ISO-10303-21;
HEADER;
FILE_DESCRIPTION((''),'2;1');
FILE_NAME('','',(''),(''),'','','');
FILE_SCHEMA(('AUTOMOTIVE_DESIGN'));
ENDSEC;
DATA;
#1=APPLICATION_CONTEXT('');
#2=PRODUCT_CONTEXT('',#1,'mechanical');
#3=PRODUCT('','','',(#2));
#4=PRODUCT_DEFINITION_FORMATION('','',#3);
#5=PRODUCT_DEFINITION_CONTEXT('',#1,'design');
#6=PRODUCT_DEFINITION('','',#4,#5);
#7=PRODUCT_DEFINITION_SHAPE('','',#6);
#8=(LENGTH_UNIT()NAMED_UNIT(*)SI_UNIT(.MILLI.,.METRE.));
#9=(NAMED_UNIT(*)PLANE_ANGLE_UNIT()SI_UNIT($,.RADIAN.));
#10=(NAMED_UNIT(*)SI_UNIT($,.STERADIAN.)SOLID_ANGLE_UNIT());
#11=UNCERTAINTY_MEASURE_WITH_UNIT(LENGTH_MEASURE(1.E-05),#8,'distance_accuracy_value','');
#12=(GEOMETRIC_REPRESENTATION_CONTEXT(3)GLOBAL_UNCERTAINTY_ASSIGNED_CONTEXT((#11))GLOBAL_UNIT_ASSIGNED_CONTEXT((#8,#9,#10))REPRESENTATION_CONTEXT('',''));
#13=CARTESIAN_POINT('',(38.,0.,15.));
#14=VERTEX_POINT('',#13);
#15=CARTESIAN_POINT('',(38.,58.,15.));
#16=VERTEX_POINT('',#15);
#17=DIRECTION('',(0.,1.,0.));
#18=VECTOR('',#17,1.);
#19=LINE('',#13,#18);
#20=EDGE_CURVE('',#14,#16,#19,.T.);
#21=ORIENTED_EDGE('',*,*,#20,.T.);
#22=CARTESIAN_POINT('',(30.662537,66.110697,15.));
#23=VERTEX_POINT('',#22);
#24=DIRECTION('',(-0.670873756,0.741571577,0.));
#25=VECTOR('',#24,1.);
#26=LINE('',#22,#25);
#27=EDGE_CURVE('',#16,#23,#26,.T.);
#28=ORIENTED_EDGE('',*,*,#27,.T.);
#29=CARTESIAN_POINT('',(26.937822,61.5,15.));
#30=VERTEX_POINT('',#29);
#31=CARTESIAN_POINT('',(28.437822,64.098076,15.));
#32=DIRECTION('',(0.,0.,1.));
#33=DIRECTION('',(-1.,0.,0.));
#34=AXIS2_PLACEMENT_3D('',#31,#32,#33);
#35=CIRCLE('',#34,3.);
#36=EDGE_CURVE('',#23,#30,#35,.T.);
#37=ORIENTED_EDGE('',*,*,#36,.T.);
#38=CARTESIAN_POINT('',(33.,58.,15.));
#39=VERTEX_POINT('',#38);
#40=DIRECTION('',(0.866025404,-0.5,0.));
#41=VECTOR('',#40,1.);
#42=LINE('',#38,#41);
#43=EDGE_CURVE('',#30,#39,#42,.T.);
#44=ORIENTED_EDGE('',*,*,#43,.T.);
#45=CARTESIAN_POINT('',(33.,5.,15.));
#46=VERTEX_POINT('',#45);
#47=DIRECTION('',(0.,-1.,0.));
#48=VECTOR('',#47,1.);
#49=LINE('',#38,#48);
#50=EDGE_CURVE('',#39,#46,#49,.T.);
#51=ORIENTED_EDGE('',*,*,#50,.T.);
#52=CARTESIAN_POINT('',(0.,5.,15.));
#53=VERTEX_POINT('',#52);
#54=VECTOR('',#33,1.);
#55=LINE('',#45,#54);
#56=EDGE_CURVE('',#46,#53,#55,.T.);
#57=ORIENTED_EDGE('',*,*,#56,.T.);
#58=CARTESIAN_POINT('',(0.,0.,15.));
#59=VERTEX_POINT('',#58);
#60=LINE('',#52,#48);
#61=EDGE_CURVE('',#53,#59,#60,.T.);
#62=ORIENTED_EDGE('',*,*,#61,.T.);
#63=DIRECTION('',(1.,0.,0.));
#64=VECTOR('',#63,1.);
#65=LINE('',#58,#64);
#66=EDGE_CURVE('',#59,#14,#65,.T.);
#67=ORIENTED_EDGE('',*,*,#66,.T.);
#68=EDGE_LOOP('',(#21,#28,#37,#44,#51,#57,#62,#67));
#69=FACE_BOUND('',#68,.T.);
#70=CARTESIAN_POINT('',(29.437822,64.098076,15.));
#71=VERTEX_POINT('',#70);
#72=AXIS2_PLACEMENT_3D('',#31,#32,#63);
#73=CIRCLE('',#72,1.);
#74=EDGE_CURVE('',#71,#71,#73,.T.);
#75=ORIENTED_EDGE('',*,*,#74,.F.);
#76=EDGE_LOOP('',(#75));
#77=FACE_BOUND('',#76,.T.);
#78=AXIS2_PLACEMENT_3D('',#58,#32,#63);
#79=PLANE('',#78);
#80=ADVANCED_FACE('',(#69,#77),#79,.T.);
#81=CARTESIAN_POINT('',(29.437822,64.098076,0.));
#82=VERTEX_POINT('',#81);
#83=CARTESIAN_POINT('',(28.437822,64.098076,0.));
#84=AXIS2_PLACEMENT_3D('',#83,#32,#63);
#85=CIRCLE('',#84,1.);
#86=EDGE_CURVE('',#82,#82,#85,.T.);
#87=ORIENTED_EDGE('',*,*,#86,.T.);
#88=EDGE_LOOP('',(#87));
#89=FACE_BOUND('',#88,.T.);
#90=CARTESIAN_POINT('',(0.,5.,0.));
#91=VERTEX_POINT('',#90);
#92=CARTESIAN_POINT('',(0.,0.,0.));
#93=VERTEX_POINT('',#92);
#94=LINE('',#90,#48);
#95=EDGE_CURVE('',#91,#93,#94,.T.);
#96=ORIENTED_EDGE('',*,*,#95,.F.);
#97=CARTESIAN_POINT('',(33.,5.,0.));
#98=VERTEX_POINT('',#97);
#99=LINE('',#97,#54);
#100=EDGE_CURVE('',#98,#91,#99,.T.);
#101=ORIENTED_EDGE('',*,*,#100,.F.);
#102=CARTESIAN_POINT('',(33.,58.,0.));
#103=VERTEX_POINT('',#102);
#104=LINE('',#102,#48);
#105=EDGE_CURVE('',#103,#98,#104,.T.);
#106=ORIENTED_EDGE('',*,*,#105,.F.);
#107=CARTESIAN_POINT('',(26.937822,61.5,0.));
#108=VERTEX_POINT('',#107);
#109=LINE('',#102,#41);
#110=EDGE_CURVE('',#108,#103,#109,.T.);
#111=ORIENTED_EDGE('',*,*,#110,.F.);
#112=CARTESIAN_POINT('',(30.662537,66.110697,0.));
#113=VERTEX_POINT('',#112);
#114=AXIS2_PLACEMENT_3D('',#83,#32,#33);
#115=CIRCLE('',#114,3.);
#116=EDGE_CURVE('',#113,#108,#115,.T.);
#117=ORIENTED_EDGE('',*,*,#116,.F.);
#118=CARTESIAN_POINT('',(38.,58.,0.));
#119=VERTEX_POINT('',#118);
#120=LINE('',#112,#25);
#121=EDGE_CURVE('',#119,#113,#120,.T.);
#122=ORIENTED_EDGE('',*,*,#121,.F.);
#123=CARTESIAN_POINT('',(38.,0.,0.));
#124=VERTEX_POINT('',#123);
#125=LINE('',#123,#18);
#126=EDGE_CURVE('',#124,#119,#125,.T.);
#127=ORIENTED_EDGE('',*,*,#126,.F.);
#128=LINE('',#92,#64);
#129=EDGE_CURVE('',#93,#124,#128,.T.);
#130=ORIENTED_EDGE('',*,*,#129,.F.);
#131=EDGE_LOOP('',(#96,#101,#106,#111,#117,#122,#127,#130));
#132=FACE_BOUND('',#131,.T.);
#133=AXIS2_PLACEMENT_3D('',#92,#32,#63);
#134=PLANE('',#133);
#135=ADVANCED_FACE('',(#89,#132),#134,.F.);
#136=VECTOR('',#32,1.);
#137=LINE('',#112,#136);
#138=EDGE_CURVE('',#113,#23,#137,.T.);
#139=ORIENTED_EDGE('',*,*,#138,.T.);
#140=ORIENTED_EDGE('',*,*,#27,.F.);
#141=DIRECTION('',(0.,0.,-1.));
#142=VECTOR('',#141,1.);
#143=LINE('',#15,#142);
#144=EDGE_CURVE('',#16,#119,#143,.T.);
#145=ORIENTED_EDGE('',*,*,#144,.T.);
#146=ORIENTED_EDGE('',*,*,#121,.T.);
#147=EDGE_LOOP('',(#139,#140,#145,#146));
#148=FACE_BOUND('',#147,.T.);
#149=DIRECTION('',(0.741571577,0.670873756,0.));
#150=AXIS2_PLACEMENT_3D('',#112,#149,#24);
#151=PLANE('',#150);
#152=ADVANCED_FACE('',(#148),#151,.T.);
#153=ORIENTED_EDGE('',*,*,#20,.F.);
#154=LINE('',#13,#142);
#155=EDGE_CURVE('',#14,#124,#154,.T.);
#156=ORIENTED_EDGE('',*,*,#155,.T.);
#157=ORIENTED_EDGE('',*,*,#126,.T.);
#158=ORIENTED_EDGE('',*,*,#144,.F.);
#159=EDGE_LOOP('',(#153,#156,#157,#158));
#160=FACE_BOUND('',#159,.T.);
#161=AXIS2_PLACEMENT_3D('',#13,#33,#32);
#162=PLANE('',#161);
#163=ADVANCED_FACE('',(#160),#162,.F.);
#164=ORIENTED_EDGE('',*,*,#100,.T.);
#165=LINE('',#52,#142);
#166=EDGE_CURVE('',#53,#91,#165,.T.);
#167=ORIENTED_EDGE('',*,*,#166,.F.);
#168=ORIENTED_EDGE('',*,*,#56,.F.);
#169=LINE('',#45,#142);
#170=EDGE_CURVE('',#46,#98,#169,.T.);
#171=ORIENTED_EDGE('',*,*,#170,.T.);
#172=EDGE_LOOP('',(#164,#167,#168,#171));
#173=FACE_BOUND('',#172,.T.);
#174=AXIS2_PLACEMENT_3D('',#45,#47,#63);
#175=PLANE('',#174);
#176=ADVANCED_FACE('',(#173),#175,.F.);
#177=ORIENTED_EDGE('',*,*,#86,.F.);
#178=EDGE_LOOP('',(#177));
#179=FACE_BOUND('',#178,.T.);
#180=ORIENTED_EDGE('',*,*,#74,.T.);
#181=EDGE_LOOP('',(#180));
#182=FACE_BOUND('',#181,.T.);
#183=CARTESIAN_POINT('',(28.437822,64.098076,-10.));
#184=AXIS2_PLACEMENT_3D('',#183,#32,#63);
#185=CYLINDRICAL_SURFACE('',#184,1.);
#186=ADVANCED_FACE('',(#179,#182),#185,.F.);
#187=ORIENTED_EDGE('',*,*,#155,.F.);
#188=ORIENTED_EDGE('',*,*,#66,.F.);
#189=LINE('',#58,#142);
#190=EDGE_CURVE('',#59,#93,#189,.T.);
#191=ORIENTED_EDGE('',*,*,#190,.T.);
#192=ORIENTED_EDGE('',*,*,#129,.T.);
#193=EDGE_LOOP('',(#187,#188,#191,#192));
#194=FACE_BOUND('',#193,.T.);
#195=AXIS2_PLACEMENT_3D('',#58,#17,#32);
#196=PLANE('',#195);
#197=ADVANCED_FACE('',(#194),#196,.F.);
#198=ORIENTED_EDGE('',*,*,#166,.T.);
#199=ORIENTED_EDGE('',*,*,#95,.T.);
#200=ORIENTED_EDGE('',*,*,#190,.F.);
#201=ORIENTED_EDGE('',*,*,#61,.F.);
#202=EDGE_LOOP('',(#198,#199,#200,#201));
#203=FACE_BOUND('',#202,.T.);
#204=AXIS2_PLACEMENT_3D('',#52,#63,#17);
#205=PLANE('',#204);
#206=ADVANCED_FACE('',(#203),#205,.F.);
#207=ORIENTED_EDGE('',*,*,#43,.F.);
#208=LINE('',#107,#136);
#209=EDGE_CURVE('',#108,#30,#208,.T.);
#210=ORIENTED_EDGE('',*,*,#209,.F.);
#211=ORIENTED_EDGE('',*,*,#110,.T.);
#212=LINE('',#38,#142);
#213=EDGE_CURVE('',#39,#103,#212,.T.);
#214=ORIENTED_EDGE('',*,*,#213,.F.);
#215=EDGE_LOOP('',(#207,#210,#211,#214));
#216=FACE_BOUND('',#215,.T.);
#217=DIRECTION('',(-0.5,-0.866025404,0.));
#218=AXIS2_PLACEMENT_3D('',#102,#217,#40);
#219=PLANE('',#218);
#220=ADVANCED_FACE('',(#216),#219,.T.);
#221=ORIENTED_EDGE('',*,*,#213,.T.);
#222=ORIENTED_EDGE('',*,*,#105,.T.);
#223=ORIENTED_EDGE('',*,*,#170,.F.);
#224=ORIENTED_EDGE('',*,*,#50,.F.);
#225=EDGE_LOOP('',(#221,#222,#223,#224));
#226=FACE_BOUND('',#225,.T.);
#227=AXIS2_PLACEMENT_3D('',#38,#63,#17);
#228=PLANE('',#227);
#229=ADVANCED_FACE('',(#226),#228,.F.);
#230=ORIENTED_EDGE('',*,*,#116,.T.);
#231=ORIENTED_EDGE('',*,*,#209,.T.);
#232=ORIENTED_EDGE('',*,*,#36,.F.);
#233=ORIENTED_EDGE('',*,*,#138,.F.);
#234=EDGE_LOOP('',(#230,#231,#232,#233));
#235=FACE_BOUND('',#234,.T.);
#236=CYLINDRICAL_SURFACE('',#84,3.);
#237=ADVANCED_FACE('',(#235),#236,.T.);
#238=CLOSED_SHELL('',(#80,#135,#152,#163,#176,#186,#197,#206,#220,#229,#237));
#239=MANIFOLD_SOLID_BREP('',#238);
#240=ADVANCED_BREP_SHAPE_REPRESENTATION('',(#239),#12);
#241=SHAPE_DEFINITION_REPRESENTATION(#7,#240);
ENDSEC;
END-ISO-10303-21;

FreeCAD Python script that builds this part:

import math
import FreeCAD as App
import Part
import Sketcher
from FreeCAD import Vector
Q = App.Units.Quantity

doc = App.newDocument("Part")
params = doc.addObject("Spreadsheet::Sheet", "Params")
for row, (alias, value) in enumerate([
    ("sketch1_width", "38 mm"),
    ("sketch1_width2", "5 mm"),
    ("sketch1_height", "58 mm"),
    ("pad1_length", "15 mm"),
    ("sketch2_radius", "3 mm"),
    ("sketch2_width", "5 mm"),
    ("sketch2_length", "7 mm"),
    ("pad2_length", "15 mm"),
    ("sketch3_diameter", "2 mm"),
    ("pocket1_length", "25 mm"),
], start=1):
    params.set(f"A{row}", alias)
    params.set(f"B{row}", "=" + value)
    params.setAlias(f"B{row}", alias)

body = doc.addObject("PartDesign::Body", "Body")

# Sketch on XY plane
sketch1 = body.newObject("Sketcher::SketchObject", "Sketch")
sketch1.AttachmentSupport = (doc.getObject("XY_Plane"), [""])
sketch1.MapMode = "FlatFace"
sketch1.addGeometry(Part.LineSegment(Vector(0, 0, 0), Vector(38, 0, 0)), False)
sketch1.addGeometry(Part.LineSegment(Vector(38, 0, 0), Vector(38, 58, 0)), False)
sketch1.addGeometry(Part.LineSegment(Vector(38, 58, 0), Vector(33, 58, 0)), False)
sketch1.addGeometry(Part.LineSegment(Vector(33, 58, 0), Vector(33, 5, 0)), False)
sketch1.addGeometry(Part.LineSegment(Vector(33, 5, 0), Vector(0, 5, 0)), False)
sketch1.addGeometry(Part.LineSegment(Vector(0, 5, 0), Vector(0, 0, 0)), False)
sketch1.addConstraint(Sketcher.Constraint("Coincident", 0, 2, 1, 1))
sketch1.addConstraint(Sketcher.Constraint("Coincident", 1, 2, 2, 1))
sketch1.addConstraint(Sketcher.Constraint("Coincident", 2, 2, 3, 1))
sketch1.addConstraint(Sketcher.Constraint("Coincident", 3, 2, 4, 1))
sketch1.addConstraint(Sketcher.Constraint("Coincident", 4, 2, 5, 1))
sketch1.addConstraint(Sketcher.Constraint("Coincident", 5, 2, 0, 1))
sketch1.addConstraint(Sketcher.Constraint("Horizontal", 0))
sketch1.addConstraint(Sketcher.Constraint("Vertical", 1))
sketch1.addConstraint(Sketcher.Constraint("Horizontal", 2))
sketch1.addConstraint(Sketcher.Constraint("Vertical", 3))
sketch1.addConstraint(Sketcher.Constraint("Horizontal", 4))
sketch1.addConstraint(Sketcher.Constraint("Vertical", 5))
sketch1.addConstraint(Sketcher.Constraint("Coincident", 5, 2, -1, 1))
sketch1.addConstraint(Sketcher.Constraint("Equal", 2, 5))
sketch1.addConstraint(Sketcher.Constraint("DistanceX", 0, 1, 0, 2, Q("38 mm")))
sketch1.addConstraint(Sketcher.Constraint("DistanceX", 2, 2, 2, 1, Q("5 mm")))
sketch1.addConstraint(Sketcher.Constraint("DistanceY", 1, 1, 1, 2, Q("58 mm")))
sketch1.setExpression("Constraints[14]", "Params.sketch1_width")
sketch1.setExpression("Constraints[15]", "Params.sketch1_width2")
sketch1.setExpression("Constraints[16]", "Params.sketch1_height")
pad1 = body.newObject("PartDesign::Pad", "Pad")
pad1.Profile = sketch1
pad1.setExpression("Length", "Params.pad1_length")

# Sketch on XY plane
sketch2 = body.newObject("Sketcher::SketchObject", "Sketch001")
sketch2.AttachmentSupport = (doc.getObject("XY_Plane"), [""])
sketch2.MapMode = "FlatFace"
sketch2.AttachmentOffset = App.Placement(Vector(0, 0, 15), App.Rotation())
sketch2.addGeometry(Part.LineSegment(Vector(26.937822, 61.5, 0), Vector(33, 58, 0)), False)
sketch2.addGeometry(Part.LineSegment(Vector(33, 58, 0), Vector(38, 58, 0)), False)
sketch2.addGeometry(Part.LineSegment(Vector(38, 58, 0), Vector(30.662537, 66.110697, 0)), False)
sketch2.addGeometry(Part.ArcOfCircle(Part.Circle(Vector(28.437822, 64.098076, 0), Vector(0, 0, 1), 3), math.radians(42.134538), math.radians(240)), False)
sketch2.addConstraint(Sketcher.Constraint("Coincident", 0, 2, 1, 1))
sketch2.addConstraint(Sketcher.Constraint("Coincident", 1, 2, 2, 1))
sketch2.addConstraint(Sketcher.Constraint("Tangent", 2, 2, 3, 1))
sketch2.addConstraint(Sketcher.Constraint("Tangent", 3, 2, 0, 1))
sketch2.addConstraint(Sketcher.Constraint("Horizontal", 1))
sketch2.addConstraint(Sketcher.Constraint("Radius", 3, Q("3 mm")))
sketch2.addConstraint(Sketcher.Constraint("DistanceX", 1, 1, 1, 2, Q("5 mm")))
sketch2.addConstraint(Sketcher.Constraint("Angle", 0, Q("-30 deg")))
sketch2.addConstraint(Sketcher.Constraint("Distance", 0, Q("7 mm")))
sketch2.addConstraint(Sketcher.Constraint("DistanceX", -1, 1, 0, 2, Q("33 mm")))
sketch2.addConstraint(Sketcher.Constraint("DistanceY", -1, 1, 0, 2, Q("58 mm")))
sketch2.setExpression("Constraints[5]", "Params.sketch2_radius")
sketch2.setExpression("Constraints[6]", "Params.sketch2_width")
sketch2.setExpression("Constraints[8]", "Params.sketch2_length")
pad2 = body.newObject("PartDesign::Pad", "Pad001")
pad2.Profile = sketch2
pad2.setExpression("Length", "Params.pad2_length")
pad2.Reversed = True

# Sketch on XY plane
sketch3 = body.newObject("Sketcher::SketchObject", "Sketch002")
sketch3.AttachmentSupport = (doc.getObject("XY_Plane"), [""])
sketch3.MapMode = "FlatFace"
sketch3.AttachmentOffset = App.Placement(Vector(0, 0, 15), App.Rotation())
sketch3.addGeometry(Part.Circle(Vector(28.437822, 64.098076, 0), Vector(0, 0, 1), 1), False)
sketch3.addConstraint(Sketcher.Constraint("Diameter", 0, Q("2 mm")))
sketch3.addConstraint(Sketcher.Constraint("DistanceX", -1, 1, 0, 3, Q("28.437822 mm")))
sketch3.addConstraint(Sketcher.Constraint("DistanceY", -1, 1, 0, 3, Q("64.098076 mm")))
sketch3.setExpression("Constraints[0]", "Params.sketch3_diameter")
pocket1 = body.newObject("PartDesign::Pocket", "Pocket")
pocket1.Profile = sketch3
pocket1.setExpression("Length", "Params.pocket1_length")

doc.recompute()
